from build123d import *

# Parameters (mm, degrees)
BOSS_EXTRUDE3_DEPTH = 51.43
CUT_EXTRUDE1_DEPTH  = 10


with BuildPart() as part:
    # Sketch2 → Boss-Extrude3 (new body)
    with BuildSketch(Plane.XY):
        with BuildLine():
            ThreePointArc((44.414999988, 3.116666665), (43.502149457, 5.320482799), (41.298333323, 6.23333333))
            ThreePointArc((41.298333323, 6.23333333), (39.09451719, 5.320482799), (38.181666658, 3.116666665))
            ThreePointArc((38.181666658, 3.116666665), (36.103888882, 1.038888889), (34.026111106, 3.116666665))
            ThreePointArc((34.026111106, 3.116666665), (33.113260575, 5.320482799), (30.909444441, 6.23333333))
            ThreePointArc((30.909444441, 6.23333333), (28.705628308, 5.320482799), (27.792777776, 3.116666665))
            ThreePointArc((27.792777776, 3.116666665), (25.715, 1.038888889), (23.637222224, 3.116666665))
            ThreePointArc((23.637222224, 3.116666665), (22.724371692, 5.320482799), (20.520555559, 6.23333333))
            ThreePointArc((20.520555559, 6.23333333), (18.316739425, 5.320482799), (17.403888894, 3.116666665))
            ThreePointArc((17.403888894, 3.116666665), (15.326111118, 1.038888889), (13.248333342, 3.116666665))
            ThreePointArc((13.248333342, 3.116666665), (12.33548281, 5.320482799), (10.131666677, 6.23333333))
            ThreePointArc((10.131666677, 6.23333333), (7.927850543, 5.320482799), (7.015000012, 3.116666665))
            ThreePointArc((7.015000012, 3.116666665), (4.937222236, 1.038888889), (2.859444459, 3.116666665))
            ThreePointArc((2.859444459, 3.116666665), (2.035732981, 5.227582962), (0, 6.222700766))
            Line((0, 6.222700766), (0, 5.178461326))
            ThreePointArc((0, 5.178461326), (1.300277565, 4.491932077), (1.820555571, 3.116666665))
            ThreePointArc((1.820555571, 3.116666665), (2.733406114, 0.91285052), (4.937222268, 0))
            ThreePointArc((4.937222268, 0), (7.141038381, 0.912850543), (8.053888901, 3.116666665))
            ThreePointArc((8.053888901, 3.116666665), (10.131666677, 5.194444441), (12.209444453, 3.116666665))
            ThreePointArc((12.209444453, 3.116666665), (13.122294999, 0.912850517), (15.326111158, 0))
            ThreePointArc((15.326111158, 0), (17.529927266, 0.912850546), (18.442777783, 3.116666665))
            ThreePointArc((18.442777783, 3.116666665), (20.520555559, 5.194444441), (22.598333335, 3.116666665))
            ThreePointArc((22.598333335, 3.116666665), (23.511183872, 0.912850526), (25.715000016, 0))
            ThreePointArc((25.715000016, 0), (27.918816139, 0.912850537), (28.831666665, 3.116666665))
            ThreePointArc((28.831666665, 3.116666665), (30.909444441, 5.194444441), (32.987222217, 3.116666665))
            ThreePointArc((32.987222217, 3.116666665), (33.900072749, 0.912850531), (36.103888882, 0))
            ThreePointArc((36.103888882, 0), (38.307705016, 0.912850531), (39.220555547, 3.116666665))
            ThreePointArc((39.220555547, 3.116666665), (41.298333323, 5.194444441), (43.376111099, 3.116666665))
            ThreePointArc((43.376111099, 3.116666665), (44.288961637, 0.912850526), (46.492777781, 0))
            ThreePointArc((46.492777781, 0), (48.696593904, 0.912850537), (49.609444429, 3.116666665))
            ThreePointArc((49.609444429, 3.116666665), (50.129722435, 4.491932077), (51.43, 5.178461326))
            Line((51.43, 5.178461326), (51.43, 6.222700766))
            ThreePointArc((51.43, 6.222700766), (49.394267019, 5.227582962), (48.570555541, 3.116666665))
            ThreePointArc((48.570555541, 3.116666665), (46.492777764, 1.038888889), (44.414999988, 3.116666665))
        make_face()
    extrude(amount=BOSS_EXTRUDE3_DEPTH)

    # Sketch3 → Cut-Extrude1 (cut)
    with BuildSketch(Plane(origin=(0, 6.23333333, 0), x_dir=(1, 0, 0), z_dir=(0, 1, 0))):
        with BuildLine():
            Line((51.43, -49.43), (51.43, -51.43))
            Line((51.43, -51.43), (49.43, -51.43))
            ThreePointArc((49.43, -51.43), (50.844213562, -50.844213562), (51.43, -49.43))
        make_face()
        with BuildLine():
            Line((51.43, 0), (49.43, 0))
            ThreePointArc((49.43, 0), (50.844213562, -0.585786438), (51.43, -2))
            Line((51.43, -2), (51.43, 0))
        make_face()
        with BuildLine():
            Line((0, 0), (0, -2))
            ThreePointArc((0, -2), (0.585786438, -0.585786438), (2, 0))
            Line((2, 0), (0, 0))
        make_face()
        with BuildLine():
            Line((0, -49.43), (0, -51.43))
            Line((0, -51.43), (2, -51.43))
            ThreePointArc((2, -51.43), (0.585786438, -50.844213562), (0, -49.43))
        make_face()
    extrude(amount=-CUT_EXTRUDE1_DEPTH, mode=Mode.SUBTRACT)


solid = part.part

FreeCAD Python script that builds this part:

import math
import FreeCAD as App
import Part
import Sketcher
from FreeCAD import Vector

doc = App.newDocument("Part")
body = doc.addObject("PartDesign::Body", "Body")

# Sketch on XY plane
sketch1 = body.newObject("Sketcher::SketchObject", "Sketch")
sketch1.AttachmentSupport = (doc.getObject("XY_Plane"), [""])
sketch1.MapMode = "FlatFace"
sketch1.addGeometry([
    Part.ArcOfCircle(Part.Circle(Vector(41.3, 3.1, 0), Vector(0, 0, 1), 3.1), math.radians(0), math.radians(90)),  # 0
    Part.ArcOfCircle(Part.Circle(Vector(41.3, 3.1, 0), Vector(0, 0, 1), 3.1), math.radians(90), math.radians(180)),  # 1
    Part.ArcOfCircle(Part.Circle(Vector(36.1, 3.1, 0), Vector(0, 0, 1), 2.1), math.radians(180), math.radians(360)),  # 2
    Part.ArcOfCircle(Part.Circle(Vector(30.9, 3.1, 0), Vector(0, 0, 1), 3.1), math.radians(0), math.radians(90)),  # 3
    Part.ArcOfCircle(Part.Circle(Vector(30.9, 3.1, 0), Vector(0, 0, 1), 3.1), math.radians(90), math.radians(180)),  # 4
    Part.ArcOfCircle(Part.Circle(Vector(25.7, 3.1, 0), Vector(0, 0, 1), 2.1), math.radians(180), math.radians(360)),  # 5
    Part.ArcOfCircle(Part.Circle(Vector(20.5, 3.1, 0), Vector(0, 0, 1), 3.1), math.radians(0), math.radians(90)),  # 6
    Part.ArcOfCircle(Part.Circle(Vector(20.5, 3.1, 0), Vector(0, 0, 1), 3.1), math.radians(90), math.radians(180)),  # 7
    Part.ArcOfCircle(Part.Circle(Vector(15.3, 3.1, 0), Vector(0, 0, 1), 2.1), math.radians(180), math.radians(360)),  # 8
    Part.ArcOfCircle(Part.Circle(Vector(10.1, 3.1, 0), Vector(0, 0, 1), 3.1), math.radians(0), math.radians(90)),  # 9
    Part.ArcOfCircle(Part.Circle(Vector(10.1, 3.1, 0), Vector(0, 0, 1), 3.1), math.radians(90), math.radians(180)),  # 10
    Part.ArcOfCircle(Part.Circle(Vector(4.9, 3.1, 0), Vector(0, 0, 1), 2.1), math.radians(-180), math.radians(0)),  # 11
    Part.ArcOfCircle(Part.Circle(Vector(-0.3, 3.1, 0), Vector(0, 0, 1), 3.1), math.radians(0), math.radians(85)),  # 12
    Part.LineSegment(Vector(0, 6.2, 0), Vector(0, 5.2, 0)),  # 13
    Part.ArcOfCircle(Part.Circle(Vector(-0.3, 3.1, 0), Vector(0, 0, 1), 2.1), math.radians(0), math.radians(83)),  # 14
    Part.ArcOfCircle(Part.Circle(Vector(4.9, 3.1, 0), Vector(0, 0, 1), 3.1), math.radians(180), math.radians(270)),  # 15
    Part.ArcOfCircle(Part.Circle(Vector(4.9, 3.1, 0), Vector(0, 0, 1), 3.1), math.radians(-90), math.radians(0)),  # 16
    Part.ArcOfCircle(Part.Circle(Vector(10.1, 3.1, 0), Vector(0, 0, 1), 2.1), math.radians(0), math.radians(180)),  # 17
    Part.ArcOfCircle(Part.Circle(Vector(15.3, 3.1, 0), Vector(0, 0, 1), 3.1), math.radians(180), math.radians(270)),  # 18
    Part.ArcOfCircle(Part.Circle(Vector(15.3, 3.1, 0), Vector(0, 0, 1), 3.1), math.radians(-90), math.radians(0)),  # 19
    Part.ArcOfCircle(Part.Circle(Vector(20.5, 3.1, 0), Vector(0, 0, 1), 2.1), math.radians(0), math.radians(180)),  # 20
    Part.ArcOfCircle(Part.Circle(Vector(25.7, 3.1, 0), Vector(0, 0, 1), 3.1), math.radians(180), math.radians(270)),  # 21
    Part.ArcOfCircle(Part.Circle(Vector(25.7, 3.1, 0), Vector(0, 0, 1), 3.1), math.radians(-90), math.radians(0)),  # 22
    Part.ArcOfCircle(Part.Circle(Vector(30.9, 3.1, 0), Vector(0, 0, 1), 2.1), math.radians(0), math.radians(180)),  # 23
    Part.ArcOfCircle(Part.Circle(Vector(36.1, 3.1, 0), Vector(0, 0, 1), 3.1), math.radians(180), math.radians(270)),  # 24
    Part.ArcOfCircle(Part.Circle(Vector(36.1, 3.1, 0), Vector(0, 0, 1), 3.1), math.radians(-90), math.radians(0)),  # 25
    Part.ArcOfCircle(Part.Circle(Vector(41.3, 3.1, 0), Vector(0, 0, 1), 2.1), math.radians(0), math.radians(180)),  # 26
    Part.ArcOfCircle(Part.Circle(Vector(46.5, 3.1, 0), Vector(0, 0, 1), 3.1), math.radians(-180), math.radians(-90)),  # 27
    Part.ArcOfCircle(Part.Circle(Vector(46.5, 3.1, 0), Vector(0, 0, 1), 3.1), math.radians(-90), math.radians(0)),  # 28
    Part.ArcOfCircle(Part.Circle(Vector(51.7, 3.1, 0), Vector(0, 0, 1), 2.1), math.radians(97), math.radians(180)),  # 29
    Part.LineSegment(Vector(51.4, 5.2, 0), Vector(51.4, 6.2, 0)),  # 30
    Part.ArcOfCircle(Part.Circle(Vector(51.7, 3.1, 0), Vector(0, 0, 1), 3.1), math.radians(95), math.radians(180)),  # 31
    Part.ArcOfCircle(Part.Circle(Vector(46.5, 3.1, 0), Vector(0, 0, 1), 2.1), math.radians(-180), math.radians(0)),  # 32
], False)
sketch1.addConstraint([
    Sketcher.Constraint("Tangent", 0, 2, 1, 1),
    Sketcher.Constraint("Tangent", 1, 2, 2, 2),
    Sketcher.Constraint("Tangent", 2, 1, 3, 1),
    Sketcher.Constraint("Tangent", 3, 2, 4, 1),
    Sketcher.Constraint("Tangent", 4, 2, 5, 2),
    Sketcher.Constraint("Tangent", 5, 1, 6, 1),
    Sketcher.Constraint("Tangent", 6, 2, 7, 1),
    Sketcher.Constraint("Tangent", 7, 2, 8, 2),
    Sketcher.Constraint("Tangent", 8, 1, 9, 1),
    Sketcher.Constraint("Tangent", 9, 2, 10, 1),
    Sketcher.Constraint("Tangent", 10, 2, 11, 2),
    Sketcher.Constraint("Tangent", 11, 1, 12, 1),
    Sketcher.Constraint("Coincident", 12, 2, 13, 1),
    Sketcher.Constraint("Coincident", 13, 2, 14, 2),
    Sketcher.Constraint("Tangent", 14, 1, 15, 1),
    Sketcher.Constraint("Tangent", 15, 2, 16, 1),
    Sketcher.Constraint("Tangent", 16, 2, 17, 2),
    Sketcher.Constraint("Tangent", 17, 1, 18, 1),
    Sketcher.Constraint("Tangent", 18, 2, 19, 1),
    Sketcher.Constraint("Tangent", 19, 2, 20, 2),
    Sketcher.Constraint("Tangent", 20, 1, 21, 1),
    Sketcher.Constraint("Tangent", 21, 2, 22, 1),
    Sketcher.Constraint("Tangent", 22, 2, 23, 2),
    Sketcher.Constraint("Tangent", 23, 1, 24, 1),
    Sketcher.Constraint("Tangent", 24, 2, 25, 1),
    Sketcher.Constraint("Tangent", 25, 2, 26, 2),
    Sketcher.Constraint("Tangent", 26, 1, 27, 1),
    Sketcher.Constraint("Tangent", 27, 2, 28, 1),
    Sketcher.Constraint("Tangent", 28, 2, 29, 2),
    Sketcher.Constraint("Coincident", 29, 1, 30, 1),
    Sketcher.Constraint("Coincident", 30, 2, 31, 1),
    Sketcher.Constraint("Tangent", 31, 2, 32, 2),
    Sketcher.Constraint("Tangent", 32, 1, 0, 1),
    Sketcher.Constraint("Vertical", 13),
    Sketcher.Constraint("Vertical", 30),
    Sketcher.Constraint("Coincident", 14, 3, 12, 3),
    Sketcher.Constraint("Coincident", 15, 3, 11, 3),
    Sketcher.Constraint("Coincident", 17, 3, 9, 3),
    Sketcher.Constraint("Coincident", 18, 3, 8, 3),
    Sketcher.Constraint("Coincident", 20, 3, 6, 3),
    Sketcher.Constraint("Coincident", 21, 3, 5, 3),
    Sketcher.Constraint("Coincident", 23, 3, 3, 3),
    Sketcher.Constraint("Coincident", 24, 3, 2, 3),
    Sketcher.Constraint("Coincident", 26, 3, 0, 3),
    Sketcher.Constraint("Coincident", 31, 3, 29, 3),
    Sketcher.Constraint("Coincident", 32, 3, 27, 3),
    Sketcher.Constraint("Equal", 0, 1),
    Sketcher.Constraint("Equal", 1, 3),
    Sketcher.Constraint("Equal", 3, 4),
    Sketcher.Constraint("Equal", 2, 5),
    Sketcher.Constraint("Equal", 4, 6),
    Sketcher.Constraint("Equal", 6, 7),
    Sketcher.Constraint("Equal", 5, 8),
    Sketcher.Constraint("Equal", 7, 9),
    Sketcher.Constraint("Equal", 9, 10),
    Sketcher.Constraint("Equal", 8, 11),
    Sketcher.Constraint("Equal", 10, 12),
    Sketcher.Constraint("Equal", 11, 14),
    Sketcher.Constraint("Equal", 15, 16),
    Sketcher.Constraint("Equal", 18, 19),
    Sketcher.Constraint("Equal", 21, 22),
    Sketcher.Constraint("Equal", 24, 25),
    Sketcher.Constraint("Equal", 25, 27),
    Sketcher.Constraint("Equal", 27, 28),
    Sketcher.Constraint("Equal", 26, 29),
    Sketcher.Constraint("PointOnObject", 12, 2, -2),
    Sketcher.Constraint("PointOnObject", 15, 2, -1),
    Sketcher.Constraint("PointOnObject", 18, 2, -1),
    Sketcher.Constraint("PointOnObject", 21, 2, -1),
    Sketcher.Constraint("PointOnObject", 24, 2, -1),
    Sketcher.Constraint("PointOnObject", 27, 2, -1),
    Sketcher.Constraint("Horizontal", 1, 3, 2, 3),
    Sketcher.Constraint("Horizontal", 2, 3, 3, 3),
    Sketcher.Constraint("Horizontal", 5, 3, 6, 3),
    Sketcher.Constraint("Horizontal", 8, 3, 9, 3),
    Sketcher.Constraint("Horizontal", 11, 3, 12, 3),
    Sketcher.Constraint("Horizontal", 28, 3, 29, 3),
    Sketcher.Constraint("Horizontal", 13, 2, 29, 1),
    Sketcher.Constraint("Vertical", 26, 3, 0, 2),
    Sketcher.Constraint("Vertical", 23, 3, 3, 2),
    Sketcher.Constraint("Vertical", 20, 3, 6, 2),
    Sketcher.Constraint("Vertical", 17, 3, 9, 2),
    Sketcher.Constraint("Vertical", 16, 3, 15, 2),
    Sketcher.Constraint("Vertical", 19, 3, 18, 2),
    Sketcher.Constraint("Vertical", 22, 3, 21, 2),
    Sketcher.Constraint("Vertical", 25, 3, 24, 2),
    Sketcher.Constraint("Vertical", 32, 3, 27, 2),
    Sketcher.Constraint("DistanceX", -1, 1, 29, 1, 51.43),
    Sketcher.Constraint("DistanceX", -1, 1, 10, 2, 7.015),
    Sketcher.Constraint("Radius", 0, 3.116667),
])
pad1 = body.newObject("PartDesign::Pad", "Pad")
pad1.Profile = sketch1
pad1.Length = 51.43

# Sketch on XZ plane
sketch2 = body.newObject("Sketcher::SketchObject", "Sketch001")
sketch2.AttachmentSupport = (doc.getObject("XZ_Plane"), [""])
sketch2.MapMode = "FlatFace"
sketch2.AttachmentOffset = App.Placement(Vector(0, 0, -6.233333), App.Rotation())
sketch2.addGeometry([
    Part.LineSegment(Vector(51.4, 51.4, 0), Vector(51.4, 49.4, 0)),  # 0
    Part.ArcOfCircle(Part.Circle(Vector(49.4, 49.4, 0), Vector(0, 0, 1), 2), math.radians(0), math.radians(90)),  # 1
    Part.LineSegment(Vector(49.4, 51.4, 0), Vector(51.4, 51.4, 0)),  # 2
    Part.LineSegment(Vector(51.4, 0, 0), Vector(49.4, 0, 0)),  # 3
    Part.ArcOfCircle(Part.Circle(Vector(49.4, 2, 0), Vector(0, 0, 1), 2), math.radians(-90), math.radians(0)),  # 4
    Part.LineSegment(Vector(51.4, 2, 0), Vector(51.4, 0, 0)),  # 5
    Part.LineSegment(Vector(0, 0, 0), Vector(0, 2, 0)),  # 6
    Part.ArcOfCircle(Part.Circle(Vector(2, 2, 0), Vector(0, 0, 1), 2), math.radians(-180), math.radians(-90)),  # 7
    Part.LineSegment(Vector(2, 0, 0), Vector(0, 0, 0)),  # 8
    Part.LineSegment(Vector(0, 49.4, 0), Vector(0, 51.4, 0)),  # 9
    Part.LineSegment(Vector(0, 51.4, 0), Vector(2, 51.4, 0)),  # 10
    Part.ArcOfCircle(Part.Circle(Vector(2, 49.4, 0), Vector(0, 0, 1), 2), math.radians(90), math.radians(180)),  # 11
], False)
sketch2.addConstraint([
    Sketcher.Constraint("Tangent", 0, 2, 1, 1),
    Sketcher.Constraint("Tangent", 1, 2, 2, 1),
    Sketcher.Constraint("Coincident", 2, 2, 0, 1),
    Sketcher.Constraint("Tangent", 3, 2, 4, 1),
    Sketcher.Constraint("Tangent", 4, 2, 5, 1),
    Sketcher.Constraint("Coincident", 5, 2, 3, 1),
    Sketcher.Constraint("Tangent", 6, 2, 7, 1),
    Sketcher.Constraint("Tangent", 7, 2, 8, 1),
    Sketcher.Constraint("Coincident", 8, 2, 6, 1),
    Sketcher.Constraint("Coincident", 9, 2, 10, 1),
    Sketcher.Constraint("Tangent", 10, 2, 11, 1),
    Sketcher.Constraint("Tangent", 11, 2, 9, 1),
    Sketcher.Constraint("Vertical", 0),
    Sketcher.Constraint("Horizontal", 2),
    Sketcher.Constraint("Horizontal", 3),
    Sketcher.Constraint("Vertical", 5),
    Sketcher.Constraint("Vertical", 6),
    Sketcher.Constraint("Horizontal", 8),
    Sketcher.Constraint("Vertical", 9),
    Sketcher.Constraint("Horizontal", 10),
    Sketcher.Constraint("Coincident", 8, 2, -1, 1),
    Sketcher.Constraint("Equal", 1, 4),
    Sketcher.Constraint("Equal", 4, 7),
    Sketcher.Constraint("Equal", 7, 11),
    Sketcher.Constraint("PointOnObject", 3, 2, -1),
    Sketcher.Constraint("PointOnObject", 9, 2, -2),
    Sketcher.Constraint("Horizontal", 1, 3, 11, 3),
    Sketcher.Constraint("Vertical", 1, 3, 4, 3),
    Sketcher.Constraint("Radius", 1, 2.0),
    Sketcher.Constraint("DistanceX", -1, 1, 1, 3, 49.43),
    Sketcher.Constraint("DistanceY", -1, 1, 1, 3, 49.43),
])
pocket1 = body.newObject("PartDesign::Pocket", "Pocket")
pocket1.Profile = sketch2
pocket1.Length = 10
pocket1.Reversed = True

doc.recompute()
